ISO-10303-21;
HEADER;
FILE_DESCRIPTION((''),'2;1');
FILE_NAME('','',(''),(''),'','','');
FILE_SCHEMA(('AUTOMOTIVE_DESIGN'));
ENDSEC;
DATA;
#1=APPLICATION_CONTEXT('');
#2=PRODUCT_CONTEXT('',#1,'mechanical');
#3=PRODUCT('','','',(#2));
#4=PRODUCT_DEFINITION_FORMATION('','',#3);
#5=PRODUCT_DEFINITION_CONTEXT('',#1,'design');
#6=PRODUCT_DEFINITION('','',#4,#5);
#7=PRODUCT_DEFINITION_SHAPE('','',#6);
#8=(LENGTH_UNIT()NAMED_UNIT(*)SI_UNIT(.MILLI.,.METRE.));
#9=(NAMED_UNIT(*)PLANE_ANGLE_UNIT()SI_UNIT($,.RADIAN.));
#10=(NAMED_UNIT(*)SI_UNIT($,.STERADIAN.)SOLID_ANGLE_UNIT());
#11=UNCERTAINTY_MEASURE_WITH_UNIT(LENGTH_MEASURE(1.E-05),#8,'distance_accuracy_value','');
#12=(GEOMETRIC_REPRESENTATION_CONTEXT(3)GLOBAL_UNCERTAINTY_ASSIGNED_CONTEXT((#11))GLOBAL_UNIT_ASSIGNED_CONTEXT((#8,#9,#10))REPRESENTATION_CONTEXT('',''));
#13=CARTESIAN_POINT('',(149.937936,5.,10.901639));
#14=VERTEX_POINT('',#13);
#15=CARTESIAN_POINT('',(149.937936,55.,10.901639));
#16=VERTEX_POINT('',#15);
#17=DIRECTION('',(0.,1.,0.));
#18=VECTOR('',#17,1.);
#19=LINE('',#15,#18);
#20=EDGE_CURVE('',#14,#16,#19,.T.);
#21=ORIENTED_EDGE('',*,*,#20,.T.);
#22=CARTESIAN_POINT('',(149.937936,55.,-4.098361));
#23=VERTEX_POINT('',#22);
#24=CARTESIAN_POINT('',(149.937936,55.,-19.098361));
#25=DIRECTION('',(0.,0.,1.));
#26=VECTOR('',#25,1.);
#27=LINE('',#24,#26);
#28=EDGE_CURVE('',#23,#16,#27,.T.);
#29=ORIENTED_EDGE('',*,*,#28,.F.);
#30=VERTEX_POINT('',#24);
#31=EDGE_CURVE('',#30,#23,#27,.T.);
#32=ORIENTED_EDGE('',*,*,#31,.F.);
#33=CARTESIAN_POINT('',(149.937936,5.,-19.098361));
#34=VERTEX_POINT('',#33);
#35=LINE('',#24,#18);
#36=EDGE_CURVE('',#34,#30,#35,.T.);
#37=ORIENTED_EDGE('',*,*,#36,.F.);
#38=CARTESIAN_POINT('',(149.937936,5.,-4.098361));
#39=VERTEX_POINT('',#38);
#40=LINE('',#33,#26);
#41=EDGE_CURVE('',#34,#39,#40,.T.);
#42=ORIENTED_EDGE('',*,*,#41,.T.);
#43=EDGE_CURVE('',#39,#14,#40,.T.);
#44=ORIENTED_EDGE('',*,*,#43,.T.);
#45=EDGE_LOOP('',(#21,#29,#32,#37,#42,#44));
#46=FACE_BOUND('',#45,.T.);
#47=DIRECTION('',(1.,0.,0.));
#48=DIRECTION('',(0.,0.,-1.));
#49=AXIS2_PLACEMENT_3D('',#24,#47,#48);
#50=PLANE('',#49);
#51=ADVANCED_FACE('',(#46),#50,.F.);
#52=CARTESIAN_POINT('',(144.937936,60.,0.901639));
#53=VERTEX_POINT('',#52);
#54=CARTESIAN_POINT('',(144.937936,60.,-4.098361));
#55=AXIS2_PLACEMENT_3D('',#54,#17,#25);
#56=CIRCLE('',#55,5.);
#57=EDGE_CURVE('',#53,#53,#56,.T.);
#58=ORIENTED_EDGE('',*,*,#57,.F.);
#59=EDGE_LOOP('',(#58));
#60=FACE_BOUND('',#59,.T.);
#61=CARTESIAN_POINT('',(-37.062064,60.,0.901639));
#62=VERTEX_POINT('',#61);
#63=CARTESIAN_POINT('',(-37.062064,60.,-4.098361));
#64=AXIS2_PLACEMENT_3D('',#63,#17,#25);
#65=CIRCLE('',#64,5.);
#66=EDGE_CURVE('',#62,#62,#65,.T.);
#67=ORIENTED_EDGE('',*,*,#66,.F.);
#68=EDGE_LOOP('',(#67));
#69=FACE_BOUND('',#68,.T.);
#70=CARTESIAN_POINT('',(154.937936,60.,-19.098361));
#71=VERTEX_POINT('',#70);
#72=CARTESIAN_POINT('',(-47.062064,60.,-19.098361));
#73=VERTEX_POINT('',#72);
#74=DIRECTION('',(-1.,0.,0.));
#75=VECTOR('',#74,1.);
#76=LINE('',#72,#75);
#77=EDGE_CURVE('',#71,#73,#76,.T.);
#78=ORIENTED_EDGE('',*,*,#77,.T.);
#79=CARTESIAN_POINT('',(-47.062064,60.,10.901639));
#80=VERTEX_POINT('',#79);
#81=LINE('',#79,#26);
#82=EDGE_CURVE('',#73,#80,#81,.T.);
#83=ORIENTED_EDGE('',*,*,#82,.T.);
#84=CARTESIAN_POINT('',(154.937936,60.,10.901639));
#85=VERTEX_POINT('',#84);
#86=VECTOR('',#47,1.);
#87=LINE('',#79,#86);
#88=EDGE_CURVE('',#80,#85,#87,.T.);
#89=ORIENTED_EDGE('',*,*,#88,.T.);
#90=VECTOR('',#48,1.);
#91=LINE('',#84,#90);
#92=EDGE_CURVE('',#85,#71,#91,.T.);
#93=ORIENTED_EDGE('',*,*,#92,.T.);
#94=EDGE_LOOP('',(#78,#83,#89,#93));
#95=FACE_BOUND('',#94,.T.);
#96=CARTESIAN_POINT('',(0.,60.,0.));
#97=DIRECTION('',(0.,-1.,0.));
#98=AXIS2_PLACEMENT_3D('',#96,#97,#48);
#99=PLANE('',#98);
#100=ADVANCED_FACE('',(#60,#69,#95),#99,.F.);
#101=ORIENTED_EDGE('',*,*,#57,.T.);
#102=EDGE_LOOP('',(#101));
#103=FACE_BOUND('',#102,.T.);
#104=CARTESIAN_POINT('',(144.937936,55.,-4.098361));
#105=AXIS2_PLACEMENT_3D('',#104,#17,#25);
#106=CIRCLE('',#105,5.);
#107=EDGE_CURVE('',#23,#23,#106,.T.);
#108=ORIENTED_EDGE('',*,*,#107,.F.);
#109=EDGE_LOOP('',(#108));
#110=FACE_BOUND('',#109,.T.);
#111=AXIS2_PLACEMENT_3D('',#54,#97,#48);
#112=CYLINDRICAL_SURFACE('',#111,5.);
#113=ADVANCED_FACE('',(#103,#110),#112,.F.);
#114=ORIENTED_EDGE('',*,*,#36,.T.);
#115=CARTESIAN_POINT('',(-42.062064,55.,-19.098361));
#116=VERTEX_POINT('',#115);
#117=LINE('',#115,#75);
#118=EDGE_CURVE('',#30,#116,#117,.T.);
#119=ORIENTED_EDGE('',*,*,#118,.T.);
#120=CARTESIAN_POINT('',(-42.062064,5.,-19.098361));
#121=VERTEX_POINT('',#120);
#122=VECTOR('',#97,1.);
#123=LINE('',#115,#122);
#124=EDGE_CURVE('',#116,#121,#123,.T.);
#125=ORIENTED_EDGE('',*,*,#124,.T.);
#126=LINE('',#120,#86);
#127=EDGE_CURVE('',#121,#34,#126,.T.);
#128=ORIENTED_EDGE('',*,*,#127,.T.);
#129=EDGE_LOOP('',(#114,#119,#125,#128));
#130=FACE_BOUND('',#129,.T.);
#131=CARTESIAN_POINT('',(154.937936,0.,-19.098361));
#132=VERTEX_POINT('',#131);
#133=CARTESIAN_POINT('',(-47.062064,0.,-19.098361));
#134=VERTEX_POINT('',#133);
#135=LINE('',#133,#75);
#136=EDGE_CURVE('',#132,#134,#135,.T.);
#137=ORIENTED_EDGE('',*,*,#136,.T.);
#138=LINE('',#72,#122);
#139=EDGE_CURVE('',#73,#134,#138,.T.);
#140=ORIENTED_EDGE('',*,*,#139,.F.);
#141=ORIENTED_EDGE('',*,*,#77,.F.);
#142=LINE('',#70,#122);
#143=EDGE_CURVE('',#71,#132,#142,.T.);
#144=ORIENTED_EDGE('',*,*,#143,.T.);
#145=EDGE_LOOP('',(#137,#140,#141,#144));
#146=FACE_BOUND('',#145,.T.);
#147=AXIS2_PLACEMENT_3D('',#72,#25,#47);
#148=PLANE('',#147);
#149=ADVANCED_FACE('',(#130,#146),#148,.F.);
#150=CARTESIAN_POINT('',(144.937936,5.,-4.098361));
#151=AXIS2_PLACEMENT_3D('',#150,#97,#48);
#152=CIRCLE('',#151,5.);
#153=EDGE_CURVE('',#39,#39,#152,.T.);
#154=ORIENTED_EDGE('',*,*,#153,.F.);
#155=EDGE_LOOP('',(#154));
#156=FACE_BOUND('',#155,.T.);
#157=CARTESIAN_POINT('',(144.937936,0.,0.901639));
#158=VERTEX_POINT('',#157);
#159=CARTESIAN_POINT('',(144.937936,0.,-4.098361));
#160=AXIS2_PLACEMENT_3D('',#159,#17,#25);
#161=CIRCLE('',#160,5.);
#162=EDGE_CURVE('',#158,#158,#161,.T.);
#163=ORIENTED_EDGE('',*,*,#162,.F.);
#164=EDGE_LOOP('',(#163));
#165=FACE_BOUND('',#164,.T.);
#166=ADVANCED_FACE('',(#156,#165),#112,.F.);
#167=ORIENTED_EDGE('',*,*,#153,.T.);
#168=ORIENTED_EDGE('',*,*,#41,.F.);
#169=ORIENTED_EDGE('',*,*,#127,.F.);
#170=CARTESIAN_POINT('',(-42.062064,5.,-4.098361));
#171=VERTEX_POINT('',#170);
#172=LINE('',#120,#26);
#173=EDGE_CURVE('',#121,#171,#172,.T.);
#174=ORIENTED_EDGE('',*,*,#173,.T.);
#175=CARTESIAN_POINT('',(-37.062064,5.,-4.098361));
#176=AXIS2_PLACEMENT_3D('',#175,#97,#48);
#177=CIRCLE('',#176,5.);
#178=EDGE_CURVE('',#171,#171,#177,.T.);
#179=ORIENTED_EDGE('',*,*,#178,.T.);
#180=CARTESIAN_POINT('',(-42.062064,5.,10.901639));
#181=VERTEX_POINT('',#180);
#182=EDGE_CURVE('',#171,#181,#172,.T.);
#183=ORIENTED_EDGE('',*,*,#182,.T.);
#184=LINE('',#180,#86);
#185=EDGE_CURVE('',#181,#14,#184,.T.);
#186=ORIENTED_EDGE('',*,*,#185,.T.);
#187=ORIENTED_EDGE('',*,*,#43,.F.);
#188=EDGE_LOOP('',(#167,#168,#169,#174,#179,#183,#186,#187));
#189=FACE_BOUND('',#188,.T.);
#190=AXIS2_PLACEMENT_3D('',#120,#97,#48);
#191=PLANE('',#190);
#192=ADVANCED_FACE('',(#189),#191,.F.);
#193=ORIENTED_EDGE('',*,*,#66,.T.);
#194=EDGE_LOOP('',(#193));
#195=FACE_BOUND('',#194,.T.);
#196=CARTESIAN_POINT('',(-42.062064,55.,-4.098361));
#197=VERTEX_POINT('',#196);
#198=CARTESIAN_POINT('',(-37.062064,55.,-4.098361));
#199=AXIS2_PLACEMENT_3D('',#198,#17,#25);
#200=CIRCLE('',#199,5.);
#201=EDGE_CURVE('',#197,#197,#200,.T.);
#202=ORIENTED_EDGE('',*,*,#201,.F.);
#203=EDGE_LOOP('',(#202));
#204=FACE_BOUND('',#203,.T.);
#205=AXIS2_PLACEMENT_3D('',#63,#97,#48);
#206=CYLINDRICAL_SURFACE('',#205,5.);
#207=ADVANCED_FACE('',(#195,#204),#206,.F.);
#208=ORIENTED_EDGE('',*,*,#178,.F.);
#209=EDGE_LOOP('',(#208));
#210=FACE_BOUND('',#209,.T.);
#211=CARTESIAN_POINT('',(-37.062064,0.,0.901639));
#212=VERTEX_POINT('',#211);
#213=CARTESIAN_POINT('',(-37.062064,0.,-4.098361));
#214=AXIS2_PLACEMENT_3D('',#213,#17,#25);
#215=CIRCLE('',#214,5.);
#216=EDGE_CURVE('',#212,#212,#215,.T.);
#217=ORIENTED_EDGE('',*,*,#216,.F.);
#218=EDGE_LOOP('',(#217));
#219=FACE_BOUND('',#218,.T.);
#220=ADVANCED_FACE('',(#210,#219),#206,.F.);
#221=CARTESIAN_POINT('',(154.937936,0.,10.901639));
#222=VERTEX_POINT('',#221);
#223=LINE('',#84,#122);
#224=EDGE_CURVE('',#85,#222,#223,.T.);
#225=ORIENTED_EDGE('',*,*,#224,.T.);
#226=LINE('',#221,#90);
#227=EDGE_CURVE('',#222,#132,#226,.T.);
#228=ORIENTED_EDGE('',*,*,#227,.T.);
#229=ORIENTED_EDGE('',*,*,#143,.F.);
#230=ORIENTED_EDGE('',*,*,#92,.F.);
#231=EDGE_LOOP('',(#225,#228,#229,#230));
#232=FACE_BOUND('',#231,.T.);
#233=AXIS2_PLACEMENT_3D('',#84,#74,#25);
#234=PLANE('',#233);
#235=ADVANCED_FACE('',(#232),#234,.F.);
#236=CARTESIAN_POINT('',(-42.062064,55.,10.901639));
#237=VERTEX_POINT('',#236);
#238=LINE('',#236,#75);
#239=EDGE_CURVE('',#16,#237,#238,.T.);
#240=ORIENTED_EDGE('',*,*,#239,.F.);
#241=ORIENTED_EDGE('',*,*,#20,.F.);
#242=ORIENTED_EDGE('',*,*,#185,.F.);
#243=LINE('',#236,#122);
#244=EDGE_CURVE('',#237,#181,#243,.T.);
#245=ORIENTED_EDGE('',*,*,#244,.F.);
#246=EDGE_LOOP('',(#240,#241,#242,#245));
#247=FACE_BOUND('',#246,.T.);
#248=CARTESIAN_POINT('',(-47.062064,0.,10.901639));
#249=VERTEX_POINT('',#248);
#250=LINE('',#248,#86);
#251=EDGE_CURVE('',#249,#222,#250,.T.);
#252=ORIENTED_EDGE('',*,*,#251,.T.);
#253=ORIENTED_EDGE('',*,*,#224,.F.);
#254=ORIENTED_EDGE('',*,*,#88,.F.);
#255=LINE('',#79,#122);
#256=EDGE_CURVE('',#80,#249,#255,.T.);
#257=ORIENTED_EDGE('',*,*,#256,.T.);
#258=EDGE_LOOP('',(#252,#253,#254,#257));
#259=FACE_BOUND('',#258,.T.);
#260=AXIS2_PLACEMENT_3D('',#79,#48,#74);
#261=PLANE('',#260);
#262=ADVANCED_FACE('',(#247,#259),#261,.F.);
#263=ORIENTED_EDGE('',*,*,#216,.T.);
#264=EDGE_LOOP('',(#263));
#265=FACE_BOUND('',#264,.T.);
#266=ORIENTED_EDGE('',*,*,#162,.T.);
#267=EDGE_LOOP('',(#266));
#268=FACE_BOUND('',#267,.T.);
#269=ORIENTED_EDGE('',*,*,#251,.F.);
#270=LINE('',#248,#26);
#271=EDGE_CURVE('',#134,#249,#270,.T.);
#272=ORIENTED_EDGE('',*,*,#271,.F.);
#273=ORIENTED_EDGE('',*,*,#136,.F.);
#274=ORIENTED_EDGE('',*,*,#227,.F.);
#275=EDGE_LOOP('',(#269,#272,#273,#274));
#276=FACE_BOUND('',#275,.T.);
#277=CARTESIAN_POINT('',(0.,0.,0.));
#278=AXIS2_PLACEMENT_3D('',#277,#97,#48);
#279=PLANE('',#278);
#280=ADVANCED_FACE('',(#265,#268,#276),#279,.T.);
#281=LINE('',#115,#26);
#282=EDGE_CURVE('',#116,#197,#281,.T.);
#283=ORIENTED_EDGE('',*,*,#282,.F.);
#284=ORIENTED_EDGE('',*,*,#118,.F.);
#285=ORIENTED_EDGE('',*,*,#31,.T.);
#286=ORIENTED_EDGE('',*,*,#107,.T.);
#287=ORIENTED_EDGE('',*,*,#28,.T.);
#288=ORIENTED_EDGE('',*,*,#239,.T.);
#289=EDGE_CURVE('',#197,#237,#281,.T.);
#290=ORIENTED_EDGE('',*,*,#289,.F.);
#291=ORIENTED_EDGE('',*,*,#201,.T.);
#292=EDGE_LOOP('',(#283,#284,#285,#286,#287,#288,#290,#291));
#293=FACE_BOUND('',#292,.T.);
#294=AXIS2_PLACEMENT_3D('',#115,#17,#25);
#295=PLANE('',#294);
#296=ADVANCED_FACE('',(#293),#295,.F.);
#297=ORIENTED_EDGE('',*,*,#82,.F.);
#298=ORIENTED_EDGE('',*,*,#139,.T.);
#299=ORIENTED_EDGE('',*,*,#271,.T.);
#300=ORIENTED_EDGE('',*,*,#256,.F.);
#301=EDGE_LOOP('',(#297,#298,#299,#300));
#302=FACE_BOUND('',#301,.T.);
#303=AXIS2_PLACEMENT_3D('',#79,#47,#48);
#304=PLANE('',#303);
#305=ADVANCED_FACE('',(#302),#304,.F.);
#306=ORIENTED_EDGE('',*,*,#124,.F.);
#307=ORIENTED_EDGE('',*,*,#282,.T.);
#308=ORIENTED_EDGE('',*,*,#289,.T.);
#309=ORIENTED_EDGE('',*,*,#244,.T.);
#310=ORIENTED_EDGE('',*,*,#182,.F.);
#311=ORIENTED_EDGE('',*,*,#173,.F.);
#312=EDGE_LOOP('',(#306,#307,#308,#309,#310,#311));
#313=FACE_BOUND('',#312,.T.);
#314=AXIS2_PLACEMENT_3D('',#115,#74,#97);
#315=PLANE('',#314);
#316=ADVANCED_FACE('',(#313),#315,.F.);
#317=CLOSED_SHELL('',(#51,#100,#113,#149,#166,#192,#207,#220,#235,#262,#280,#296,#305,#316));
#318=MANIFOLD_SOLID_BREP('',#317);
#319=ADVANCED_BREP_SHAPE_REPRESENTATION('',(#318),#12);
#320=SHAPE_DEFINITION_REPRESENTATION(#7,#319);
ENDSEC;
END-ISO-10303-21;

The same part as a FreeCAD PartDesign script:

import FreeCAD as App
import Part
import Sketcher

V = App.Vector

doc = App.newDocument("Part")
body = doc.addObject("PartDesign::Body", "Body")

# Sketch on XZ plane
sketch1 = body.newObject("Sketcher::SketchObject", "Sketch")
sketch1.AttachmentSupport = (doc.getObject("XZ_Plane"), [""])
sketch1.MapMode = "FlatFace"
sketch1.addGeometry(Part.LineSegment(V(-47, -19, 0), V(-47, 11, 0)), False)
sketch1.addGeometry(Part.LineSegment(V(-47, 11, 0), V(155, 11, 0)), False)
sketch1.addGeometry(Part.LineSegment(V(155, 11, 0), V(155, -19, 0)), False)
sketch1.addGeometry(Part.LineSegment(V(155, -19, 0), V(-47, -19, 0)), False)
sketch1.addGeometry(Part.Circle(V(-37, -4, 0), V(0, 0, 1), 5), False)
sketch1.addGeometry(Part.Circle(V(145, -4, 0), V(0, 0, 1), 5), False)
sketch1.addConstraint(Sketcher.Constraint("Coincident", 0, 2, 1, 1))
sketch1.addConstraint(Sketcher.Constraint("Coincident", 1, 2, 2, 1))
sketch1.addConstraint(Sketcher.Constraint("Coincident", 2, 2, 3, 1))
sketch1.addConstraint(Sketcher.Constraint("Coincident", 3, 2, 0, 1))
sketch1.addConstraint(Sketcher.Constraint("Vertical", 0))
sketch1.addConstraint(Sketcher.Constraint("Horizontal", 1))
sketch1.addConstraint(Sketcher.Constraint("Vertical", 2))
sketch1.addConstraint(Sketcher.Constraint("Horizontal", 3))
sketch1.addConstraint(Sketcher.Constraint("Equal", 4, 5))
sketch1.addConstraint(Sketcher.Constraint("Horizontal", 4, 3, 5, 3))
sketch1.addConstraint(Sketcher.Constraint("Diameter", 4, 10.0))
sketch1.addConstraint(Sketcher.Constraint("DistanceX", 1, 1, 1, 2, 202.0))
sketch1.addConstraint(Sketcher.Constraint("DistanceY", 0, 1, 0, 2, 30.0))
sketch1.addConstraint(Sketcher.Constraint("DistanceX", 4, 3, 5, 3, 182.0))
sketch1.addConstraint(Sketcher.Constraint("DistanceX", 0, 2, 4, 3, 10.0))
sketch1.addConstraint(Sketcher.Constraint("DistanceY", 4, 3, 0, 2, 15.0))
sketch1.addConstraint(Sketcher.Constraint("DistanceY", 4, 3, -1, 1, 4.098361))
sketch1.addConstraint(Sketcher.Constraint("DistanceX", 4, 3, -1, 1, 37.062064))
pad1 = body.newObject("PartDesign::Pad", "Pad")
pad1.Profile = sketch1
pad1.Length = 60
pad1.Reversed = True

# Sketch on XY plane
sketch2 = body.newObject("Sketcher::SketchObject", "Sketch001")
sketch2.AttachmentSupport = (doc.getObject("XY_Plane"), [""])
sketch2.MapMode = "FlatFace"
sketch2.AttachmentOffset = App.Placement(V(0, 0, 10.901639), App.Rotation())
sketch2.addGeometry(Part.LineSegment(V(-42, 55, 0), V(-42, 5, 0)), False)
sketch2.addGeometry(Part.LineSegment(V(-42, 5, 0), V(150, 5, 0)), False)
sketch2.addGeometry(Part.LineSegment(V(150, 5, 0), V(150, 55, 0)), False)
sketch2.addGeometry(Part.LineSegment(V(150, 55, 0), V(-42, 55, 0)), False)
sketch2.addConstraint(Sketcher.Constraint("Coincident", 0, 2, 1, 1))
sketch2.addConstraint(Sketcher.Constraint("Coincident", 1, 2, 2, 1))
sketch2.addConstraint(Sketcher.Constraint("Coincident", 2, 2, 3, 1))
sketch2.addConstraint(Sketcher.Constraint("Coincident", 3, 2, 0, 1))
sketch2.addConstraint(Sketcher.Constraint("Vertical", 0))
sketch2.addConstraint(Sketcher.Constraint("Horizontal", 1))
sketch2.addConstraint(Sketcher.Constraint("Vertical", 2))
sketch2.addConstraint(Sketcher.Constraint("Horizontal", 3))
sketch2.addConstraint(Sketcher.Constraint("DistanceX", 1, 1, 1, 2, 192.0))
sketch2.addConstraint(Sketcher.Constraint("DistanceY", 0, 2, 0, 1, 50.0))
sketch2.addConstraint(Sketcher.Constraint("DistanceY", -1, 1, 0, 2, 5.0))
sketch2.addConstraint(Sketcher.Constraint("DistanceX", 0, 2, -1, 1, 42.062064))
pocket1 = body.newObject("PartDesign::Pocket", "Pocket")
pocket1.Profile = sketch2
pocket1.Type = "ThroughAll"

doc.recompute()
